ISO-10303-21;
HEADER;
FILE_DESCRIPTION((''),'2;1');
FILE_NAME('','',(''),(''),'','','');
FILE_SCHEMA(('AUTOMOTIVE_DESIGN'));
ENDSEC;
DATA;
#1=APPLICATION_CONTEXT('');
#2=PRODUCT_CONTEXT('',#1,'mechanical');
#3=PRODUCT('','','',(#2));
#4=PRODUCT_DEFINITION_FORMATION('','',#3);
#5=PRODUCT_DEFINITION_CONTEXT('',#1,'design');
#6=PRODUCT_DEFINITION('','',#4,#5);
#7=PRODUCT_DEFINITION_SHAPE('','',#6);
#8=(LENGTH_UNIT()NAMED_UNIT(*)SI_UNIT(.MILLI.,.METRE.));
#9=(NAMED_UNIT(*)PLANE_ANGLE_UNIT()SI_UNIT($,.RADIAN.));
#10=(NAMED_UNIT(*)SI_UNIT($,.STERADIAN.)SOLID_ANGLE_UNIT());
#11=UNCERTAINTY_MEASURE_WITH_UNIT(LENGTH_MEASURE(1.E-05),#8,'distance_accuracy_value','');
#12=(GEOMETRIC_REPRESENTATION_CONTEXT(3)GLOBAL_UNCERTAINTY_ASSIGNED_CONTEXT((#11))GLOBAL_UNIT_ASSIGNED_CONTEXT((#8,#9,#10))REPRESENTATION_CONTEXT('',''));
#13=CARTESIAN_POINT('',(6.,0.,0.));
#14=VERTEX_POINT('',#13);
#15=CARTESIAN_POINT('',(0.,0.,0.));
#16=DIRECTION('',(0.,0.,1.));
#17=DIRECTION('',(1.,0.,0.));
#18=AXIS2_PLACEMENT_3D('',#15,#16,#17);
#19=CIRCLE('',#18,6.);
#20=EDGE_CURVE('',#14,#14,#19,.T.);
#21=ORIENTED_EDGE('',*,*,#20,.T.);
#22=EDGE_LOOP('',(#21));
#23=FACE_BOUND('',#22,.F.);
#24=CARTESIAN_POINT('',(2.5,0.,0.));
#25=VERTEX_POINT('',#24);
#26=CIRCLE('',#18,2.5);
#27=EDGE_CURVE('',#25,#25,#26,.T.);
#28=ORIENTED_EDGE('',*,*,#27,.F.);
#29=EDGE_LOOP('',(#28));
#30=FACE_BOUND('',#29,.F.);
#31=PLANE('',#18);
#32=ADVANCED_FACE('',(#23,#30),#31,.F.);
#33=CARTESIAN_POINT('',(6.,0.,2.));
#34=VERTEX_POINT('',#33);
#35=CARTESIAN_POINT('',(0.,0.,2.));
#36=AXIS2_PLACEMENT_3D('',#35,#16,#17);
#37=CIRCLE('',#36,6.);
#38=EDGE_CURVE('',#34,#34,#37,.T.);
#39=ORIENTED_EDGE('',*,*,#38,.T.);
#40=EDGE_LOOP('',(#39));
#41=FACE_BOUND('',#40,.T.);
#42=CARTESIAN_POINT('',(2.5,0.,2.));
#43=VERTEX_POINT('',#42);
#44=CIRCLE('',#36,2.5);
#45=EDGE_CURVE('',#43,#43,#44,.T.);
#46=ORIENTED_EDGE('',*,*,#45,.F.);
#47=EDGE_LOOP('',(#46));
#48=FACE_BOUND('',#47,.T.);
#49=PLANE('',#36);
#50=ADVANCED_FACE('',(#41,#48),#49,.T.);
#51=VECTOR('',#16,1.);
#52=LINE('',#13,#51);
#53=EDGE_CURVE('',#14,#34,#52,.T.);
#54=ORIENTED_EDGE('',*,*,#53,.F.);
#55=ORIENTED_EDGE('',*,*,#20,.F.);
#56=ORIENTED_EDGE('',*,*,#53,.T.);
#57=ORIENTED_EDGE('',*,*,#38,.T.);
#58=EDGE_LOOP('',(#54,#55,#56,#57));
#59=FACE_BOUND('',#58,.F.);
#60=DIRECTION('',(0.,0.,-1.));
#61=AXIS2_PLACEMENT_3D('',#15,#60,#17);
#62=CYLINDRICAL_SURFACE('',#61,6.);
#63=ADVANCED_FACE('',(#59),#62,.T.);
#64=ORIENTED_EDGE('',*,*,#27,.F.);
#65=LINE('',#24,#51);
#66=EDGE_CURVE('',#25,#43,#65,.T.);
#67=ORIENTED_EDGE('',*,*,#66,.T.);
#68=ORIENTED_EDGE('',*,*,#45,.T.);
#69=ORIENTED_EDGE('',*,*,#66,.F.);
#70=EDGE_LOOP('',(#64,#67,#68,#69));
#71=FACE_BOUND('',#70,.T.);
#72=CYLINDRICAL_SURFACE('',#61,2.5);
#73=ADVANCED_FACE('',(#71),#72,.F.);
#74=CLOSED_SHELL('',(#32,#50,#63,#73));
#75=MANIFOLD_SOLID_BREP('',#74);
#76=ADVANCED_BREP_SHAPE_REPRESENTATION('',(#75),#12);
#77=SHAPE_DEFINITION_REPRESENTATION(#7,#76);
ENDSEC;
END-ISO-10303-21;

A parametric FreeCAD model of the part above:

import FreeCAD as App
import Part
import Sketcher

V = App.Vector
Q = App.Units.Quantity

doc = App.newDocument("Part")
params = doc.addObject("Spreadsheet::Sheet", "Params")
for row, (alias, value) in enumerate([
    ("sketch1_diameter", "12 mm"),
    ("sketch1_diameter2", "5 mm"),
    ("pad1_length", "2 mm"),
], start=1):
    params.set(f"A{row}", alias)
    params.set(f"B{row}", "=" + value)
    params.setAlias(f"B{row}", alias)

body = doc.addObject("PartDesign::Body", "Body")

sketch1 = doc.addObject("Sketcher::SketchObject", "Sketch")
body.addObject(sketch1)
sketch1.AttachmentSupport = (doc.XY_Plane, [""])
sketch1.MapMode = "FlatFace"
sketch1.addGeometry([
    Part.Circle(V(0, 0, 0), V(0, 0, 1), 6),
    Part.Circle(V(0, 0, 0), V(0, 0, 1), 2.5),
], False)
sketch1.addConstraint([
    Sketcher.Constraint("Coincident", 0, 3, -1, 1),
    Sketcher.Constraint("Coincident", 1, 3, -1, 1),
    Sketcher.Constraint("Diameter", 0, Q("12 mm")),
    Sketcher.Constraint("Diameter", 1, Q("5 mm")),
])
sketch1.setExpression("Constraints[2]", "Params.sketch1_diameter")
sketch1.setExpression("Constraints[3]", "Params.sketch1_diameter2")
pad1 = doc.addObject("PartDesign::Pad", "Pad")
body.addObject(pad1)
pad1.Profile = sketch1
pad1.setExpression("Length", "Params.pad1_length")

doc.recompute()
